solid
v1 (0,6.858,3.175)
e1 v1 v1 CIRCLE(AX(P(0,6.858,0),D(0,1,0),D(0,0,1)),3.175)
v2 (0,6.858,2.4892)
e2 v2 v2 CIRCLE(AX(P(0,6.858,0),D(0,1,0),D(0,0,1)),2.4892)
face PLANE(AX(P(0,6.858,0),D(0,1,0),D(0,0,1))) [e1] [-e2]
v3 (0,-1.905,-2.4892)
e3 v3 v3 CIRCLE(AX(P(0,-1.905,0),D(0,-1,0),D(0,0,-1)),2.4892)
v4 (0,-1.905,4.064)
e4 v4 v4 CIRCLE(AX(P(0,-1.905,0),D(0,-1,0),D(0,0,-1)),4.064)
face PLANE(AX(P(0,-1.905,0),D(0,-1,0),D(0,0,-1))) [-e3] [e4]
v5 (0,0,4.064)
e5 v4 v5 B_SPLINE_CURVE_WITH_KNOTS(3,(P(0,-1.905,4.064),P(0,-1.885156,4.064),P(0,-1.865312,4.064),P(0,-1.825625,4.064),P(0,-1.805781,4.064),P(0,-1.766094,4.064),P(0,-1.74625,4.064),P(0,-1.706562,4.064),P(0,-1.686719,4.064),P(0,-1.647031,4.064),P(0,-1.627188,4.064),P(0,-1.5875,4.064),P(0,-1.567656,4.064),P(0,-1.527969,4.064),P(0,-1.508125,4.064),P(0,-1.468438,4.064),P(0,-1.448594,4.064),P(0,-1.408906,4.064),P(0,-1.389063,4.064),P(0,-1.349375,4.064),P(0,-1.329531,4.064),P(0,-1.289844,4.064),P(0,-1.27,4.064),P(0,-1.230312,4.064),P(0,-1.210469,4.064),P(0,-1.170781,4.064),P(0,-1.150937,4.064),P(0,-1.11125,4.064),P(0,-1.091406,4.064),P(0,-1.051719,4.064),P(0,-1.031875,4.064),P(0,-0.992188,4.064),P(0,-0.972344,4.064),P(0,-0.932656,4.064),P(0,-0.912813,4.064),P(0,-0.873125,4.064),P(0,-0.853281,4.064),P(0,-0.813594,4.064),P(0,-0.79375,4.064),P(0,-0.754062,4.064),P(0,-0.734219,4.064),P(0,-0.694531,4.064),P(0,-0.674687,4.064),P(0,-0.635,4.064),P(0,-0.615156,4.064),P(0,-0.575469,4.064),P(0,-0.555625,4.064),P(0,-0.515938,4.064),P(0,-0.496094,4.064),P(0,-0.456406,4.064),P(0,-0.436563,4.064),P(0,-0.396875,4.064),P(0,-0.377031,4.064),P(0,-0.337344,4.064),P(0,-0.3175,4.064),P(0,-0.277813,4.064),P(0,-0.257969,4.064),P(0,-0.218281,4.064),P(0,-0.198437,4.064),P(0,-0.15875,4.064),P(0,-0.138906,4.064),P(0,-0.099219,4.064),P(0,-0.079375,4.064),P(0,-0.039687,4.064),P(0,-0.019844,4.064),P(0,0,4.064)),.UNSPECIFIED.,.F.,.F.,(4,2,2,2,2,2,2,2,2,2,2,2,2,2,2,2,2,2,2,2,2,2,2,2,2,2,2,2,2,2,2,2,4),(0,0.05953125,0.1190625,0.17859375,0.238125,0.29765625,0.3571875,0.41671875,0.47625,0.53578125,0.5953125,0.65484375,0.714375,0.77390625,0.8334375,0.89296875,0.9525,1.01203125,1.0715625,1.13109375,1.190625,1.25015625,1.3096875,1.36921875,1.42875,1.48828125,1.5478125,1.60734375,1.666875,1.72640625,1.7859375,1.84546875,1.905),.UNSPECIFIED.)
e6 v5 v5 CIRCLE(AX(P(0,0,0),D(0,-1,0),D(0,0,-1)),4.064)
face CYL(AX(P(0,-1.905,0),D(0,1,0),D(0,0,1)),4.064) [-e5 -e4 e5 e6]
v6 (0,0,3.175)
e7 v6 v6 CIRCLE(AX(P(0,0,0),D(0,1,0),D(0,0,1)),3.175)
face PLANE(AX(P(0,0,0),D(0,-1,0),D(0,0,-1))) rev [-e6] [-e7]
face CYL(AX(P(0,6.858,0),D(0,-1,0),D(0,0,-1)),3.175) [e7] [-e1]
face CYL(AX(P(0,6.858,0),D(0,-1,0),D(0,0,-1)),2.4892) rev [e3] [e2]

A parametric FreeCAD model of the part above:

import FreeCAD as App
import Part
import Sketcher

V = App.Vector
Q = App.Units.Quantity

doc = App.newDocument("Part")
params = doc.addObject("Spreadsheet::Sheet", "Params")
for row, (alias, value) in enumerate([
    ("sketch1_diameter", "0.25 in"),
    ("sketch1_diameter2", "0.196 in"),
    ("pad1_length", "0.27 in"),
    ("sketch2_diameter", "0.32 in"),
    ("pad2_length", "0.075 in"),
    ("sketch3_diameter", "0.196 in"),
], start=1):
    params.set(f"A{row}", alias)
    params.set(f"B{row}", "=" + value)
    params.setAlias(f"B{row}", alias)

body = doc.addObject("PartDesign::Body", "Body")

# Sketch on XZ plane
sketch1 = body.newObject("Sketcher::SketchObject", "Sketch")
sketch1.AttachmentSupport = (doc.getObject("XZ_Plane"), [""])
sketch1.MapMode = "FlatFace"
sketch1.addGeometry(Part.Circle(V(0, 0, 0), V(0, 0, 1), 3.175), False)
sketch1.addGeometry(Part.Circle(V(0, 0, 0), V(0, 0, 1), 2.4892), False)
sketch1.addConstraint(Sketcher.Constraint("Coincident", 0, 3, -1, 1))
sketch1.addConstraint(Sketcher.Constraint("Coincident", 1, 3, -1, 1))
sketch1.addConstraint(Sketcher.Constraint("Diameter", 0, Q("0.25 in")))
sketch1.addConstraint(Sketcher.Constraint("Diameter", 1, Q("0.196 in")))
sketch1.setExpression("Constraints[2]", "Params.sketch1_diameter")
sketch1.setExpression("Constraints[3]", "Params.sketch1_diameter2")
pad1 = body.newObject("PartDesign::Pad", "Pad")
pad1.Profile = sketch1
pad1.setExpression("Length", "Params.pad1_length")
pad1.Reversed = True

# Sketch on XZ plane
sketch2 = body.newObject("Sketcher::SketchObject", "Sketch001")
sketch2.AttachmentSupport = (doc.getObject("XZ_Plane"), [""])
sketch2.MapMode = "FlatFace"
sketch2.addGeometry(Part.Circle(V(0, 0, 0), V(0, 0, 1), 4.064), False)
sketch2.addConstraint(Sketcher.Constraint("Coincident", 0, 3, -1, 1))
sketch2.addConstraint(Sketcher.Constraint("Diameter", 0, Q("0.32 in")))
sketch2.setExpression("Constraints[1]", "Params.sketch2_diameter")
pad2 = body.newObject("PartDesign::Pad", "Pad001")
pad2.Profile = sketch2
pad2.setExpression("Length", "Params.pad2_length")

# Sketch on XZ plane
sketch3 = body.newObject("Sketcher::SketchObject", "Sketch002")
sketch3.AttachmentSupport = (doc.getObject("XZ_Plane"), [""])
sketch3.MapMode = "FlatFace"
sketch3.AttachmentOffset = App.Placement(V(0, 0, 0.075 * 25.4), App.Rotation())
sketch3.addGeometry(Part.Circle(V(0, 0, 0), V(0, 0, 1), 2.4892), False)
sketch3.addConstraint(Sketcher.Constraint("Coincident", 0, 3, -1, 1))
sketch3.addConstraint(Sketcher.Constraint("Diameter", 0, Q("0.196 in")))
sketch3.setExpression("Constraints[1]", "Params.sketch3_diameter")
pocket1 = body.newObject("PartDesign::Pocket", "Pocket")
pocket1.Profile = sketch3
pocket1.Type = "ThroughAll"

doc.recompute()
